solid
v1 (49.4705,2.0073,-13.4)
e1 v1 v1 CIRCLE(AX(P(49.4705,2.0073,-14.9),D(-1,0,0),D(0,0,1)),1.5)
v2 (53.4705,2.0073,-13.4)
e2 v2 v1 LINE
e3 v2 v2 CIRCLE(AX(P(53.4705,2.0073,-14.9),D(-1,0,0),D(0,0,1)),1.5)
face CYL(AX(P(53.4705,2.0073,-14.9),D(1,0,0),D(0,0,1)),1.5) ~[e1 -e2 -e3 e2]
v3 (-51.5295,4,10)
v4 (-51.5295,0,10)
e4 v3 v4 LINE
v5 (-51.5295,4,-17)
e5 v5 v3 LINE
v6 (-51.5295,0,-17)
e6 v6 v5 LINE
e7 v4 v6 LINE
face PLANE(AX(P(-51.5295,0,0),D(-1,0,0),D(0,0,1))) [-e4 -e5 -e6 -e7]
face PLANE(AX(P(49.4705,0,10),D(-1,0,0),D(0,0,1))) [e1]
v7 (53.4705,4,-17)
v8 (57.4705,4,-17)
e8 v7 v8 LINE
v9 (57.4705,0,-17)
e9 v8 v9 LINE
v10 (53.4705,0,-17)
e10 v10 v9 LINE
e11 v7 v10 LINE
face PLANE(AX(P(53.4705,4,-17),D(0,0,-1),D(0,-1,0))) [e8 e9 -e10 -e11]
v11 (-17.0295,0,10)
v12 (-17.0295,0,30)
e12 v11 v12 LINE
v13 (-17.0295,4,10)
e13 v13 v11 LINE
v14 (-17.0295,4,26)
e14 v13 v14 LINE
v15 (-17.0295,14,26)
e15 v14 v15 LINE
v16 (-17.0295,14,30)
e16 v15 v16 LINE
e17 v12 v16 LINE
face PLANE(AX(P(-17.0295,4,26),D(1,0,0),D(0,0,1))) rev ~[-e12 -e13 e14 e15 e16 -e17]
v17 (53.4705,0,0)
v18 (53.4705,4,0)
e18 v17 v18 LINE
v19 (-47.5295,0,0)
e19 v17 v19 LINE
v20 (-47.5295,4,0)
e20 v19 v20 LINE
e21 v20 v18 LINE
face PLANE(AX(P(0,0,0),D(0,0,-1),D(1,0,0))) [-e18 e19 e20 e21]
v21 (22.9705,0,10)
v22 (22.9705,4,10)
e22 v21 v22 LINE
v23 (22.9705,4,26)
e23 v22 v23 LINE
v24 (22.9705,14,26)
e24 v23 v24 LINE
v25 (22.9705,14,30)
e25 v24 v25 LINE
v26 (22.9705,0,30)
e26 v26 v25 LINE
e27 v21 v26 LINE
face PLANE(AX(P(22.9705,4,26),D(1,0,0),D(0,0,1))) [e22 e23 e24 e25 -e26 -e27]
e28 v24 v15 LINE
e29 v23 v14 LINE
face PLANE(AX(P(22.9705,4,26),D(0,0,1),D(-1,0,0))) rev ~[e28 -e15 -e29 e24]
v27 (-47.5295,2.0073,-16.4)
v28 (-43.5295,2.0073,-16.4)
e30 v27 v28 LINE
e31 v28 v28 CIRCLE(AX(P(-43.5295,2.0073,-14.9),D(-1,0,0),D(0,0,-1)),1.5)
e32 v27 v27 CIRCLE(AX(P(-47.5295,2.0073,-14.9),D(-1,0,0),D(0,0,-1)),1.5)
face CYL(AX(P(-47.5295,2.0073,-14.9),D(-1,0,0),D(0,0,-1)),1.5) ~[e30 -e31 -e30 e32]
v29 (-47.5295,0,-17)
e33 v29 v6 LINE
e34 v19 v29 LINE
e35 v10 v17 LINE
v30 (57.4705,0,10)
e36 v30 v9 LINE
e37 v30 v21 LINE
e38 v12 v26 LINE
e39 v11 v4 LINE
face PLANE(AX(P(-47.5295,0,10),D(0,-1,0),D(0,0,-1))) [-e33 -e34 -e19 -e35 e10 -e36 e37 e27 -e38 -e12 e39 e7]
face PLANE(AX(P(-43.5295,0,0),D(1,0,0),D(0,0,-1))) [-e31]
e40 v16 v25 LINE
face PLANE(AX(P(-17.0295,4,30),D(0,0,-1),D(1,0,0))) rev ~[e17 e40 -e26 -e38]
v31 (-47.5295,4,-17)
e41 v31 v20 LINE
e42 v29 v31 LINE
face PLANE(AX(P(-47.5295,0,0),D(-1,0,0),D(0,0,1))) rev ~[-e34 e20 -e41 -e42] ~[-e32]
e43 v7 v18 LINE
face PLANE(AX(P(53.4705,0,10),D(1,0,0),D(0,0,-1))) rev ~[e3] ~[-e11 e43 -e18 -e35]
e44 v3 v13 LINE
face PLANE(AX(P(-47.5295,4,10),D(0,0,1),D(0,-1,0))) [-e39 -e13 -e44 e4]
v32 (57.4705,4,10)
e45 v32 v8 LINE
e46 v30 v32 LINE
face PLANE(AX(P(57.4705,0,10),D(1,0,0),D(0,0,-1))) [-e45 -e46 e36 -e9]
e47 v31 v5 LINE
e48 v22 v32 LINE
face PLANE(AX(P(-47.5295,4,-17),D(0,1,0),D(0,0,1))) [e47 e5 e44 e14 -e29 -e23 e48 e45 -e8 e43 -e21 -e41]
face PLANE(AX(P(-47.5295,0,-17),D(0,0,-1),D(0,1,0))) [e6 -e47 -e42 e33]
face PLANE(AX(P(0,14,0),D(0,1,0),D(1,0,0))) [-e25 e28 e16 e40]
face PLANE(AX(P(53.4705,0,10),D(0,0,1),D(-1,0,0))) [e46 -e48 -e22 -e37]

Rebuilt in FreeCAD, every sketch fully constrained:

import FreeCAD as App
import Part
import Sketcher
Q = App.Units.Quantity


def add_polygon(sketch, points):
    """Adds a closed chain of lines whose ends are joined by coincident constraints."""
    first, n = sketch.GeometryCount, len(points)
    for a, b in zip(points, points[1:] + points[:1]):
        sketch.addGeometry(Part.LineSegment(App.Vector(*a, 0), App.Vector(*b, 0)), False)
    for i in range(n):
        sketch.addConstraint(Sketcher.Constraint("Coincident", first + i, 2, first + (i + 1) % n, 1))

doc = App.newDocument("Part")
body = doc.addObject("PartDesign::Body", "Body")

# Sketch on XZ plane
sketch1 = body.newObject("Sketcher::SketchObject", "Sketch")
sketch1.AttachmentSupport = (doc.getObject("XZ_Plane"), [""])
sketch1.MapMode = "FlatFace"
add_polygon(sketch1, [(53, 0), (-48, 0), (-48, 10), (53, 10)])  # lines 0-3
sketch1.addConstraint([
    Sketcher.Constraint("Horizontal", 0),
    Sketcher.Constraint("Vertical", 1),
    Sketcher.Constraint("Horizontal", 2),
    Sketcher.Constraint("Vertical", 3),
    Sketcher.Constraint("PointOnObject", 0, 2, -1),
    Sketcher.Constraint("DistanceX", 0, 2, 0, 1, Q("101 mm")),
    Sketcher.Constraint("DistanceY", 1, 1, 1, 2, Q("10 mm")),
    Sketcher.Constraint("DistanceX", 0, 2, -1, 1, Q("47.5295 mm")),
])
pad1 = body.newObject("PartDesign::Pad", "Pad")
pad1.Profile = sketch1
pad1.Length = 4
pad1.Reversed = True

# Sketch on XY plane
sketch2 = body.newObject("Sketcher::SketchObject", "Sketch001")
sketch2.AttachmentSupport = (doc.getObject("XY_Plane"), [""])
sketch2.MapMode = "FlatFace"
sketch2.AttachmentOffset = App.Placement(App.Vector(0, 0, 10), App.Rotation())
add_polygon(sketch2, [(23, 4), (-17, 4), (-17, 0), (23, 0)])  # lines 0-3
sketch2.addConstraint([
    Sketcher.Constraint("Horizontal", 0),
    Sketcher.Constraint("Vertical", 1),
    Sketcher.Constraint("Horizontal", 2),
    Sketcher.Constraint("Vertical", 3),
    Sketcher.Constraint("PointOnObject", 1, 2, -1),
    Sketcher.Constraint("DistanceX", 0, 2, 0, 1, Q("40 mm")),
    Sketcher.Constraint("DistanceY", 1, 2, 1, 1, Q("4 mm")),
    Sketcher.Constraint("DistanceX", 0, 2, -1, 1, Q("17.0295 mm")),
])
pad2 = body.newObject("PartDesign::Pad", "Pad001")
pad2.Profile = sketch2
pad2.Length = 20

# Sketch on XZ plane
sketch3 = body.newObject("Sketcher::SketchObject", "Sketch002")
sketch3.AttachmentSupport = (doc.getObject("XZ_Plane"), [""])
sketch3.MapMode = "FlatFace"
sketch3.AttachmentOffset = App.Placement(App.Vector(0, 0, -4), App.Rotation())
add_polygon(sketch3, [(-17, 26), (-17, 30), (23, 30), (23, 26)])  # lines 0-3
sketch3.addConstraint([
    Sketcher.Constraint("Vertical", 0),
    Sketcher.Constraint("Horizontal", 1),
    Sketcher.Constraint("Vertical", 2),
    Sketcher.Constraint("Horizontal", 3),
    Sketcher.Constraint("DistanceY", 0, 1, 0, 2, Q("4 mm")),
    Sketcher.Constraint("DistanceX", 1, 1, 1, 2, Q("40 mm")),
    Sketcher.Constraint("DistanceY", -1, 1, 0, 2, Q("30 mm")),
    Sketcher.Constraint("DistanceX", 0, 2, -1, 1, Q("17.0295 mm")),
])
pad3 = body.newObject("PartDesign::Pad", "Pad002")
pad3.Profile = sketch3
pad3.Length = 10
pad3.Reversed = True

# Sketch on YZ plane
sketch4 = body.newObject("Sketcher::SketchObject", "Sketch003")
sketch4.AttachmentSupport = (doc.getObject("YZ_Plane"), [""])
sketch4.MapMode = "FlatFace"
sketch4.AttachmentOffset = App.Placement(App.Vector(0, 0, 53.4705), App.Rotation())
add_polygon(sketch4, [(4, 10), (0, 10), (0, -17), (4, -17)])  # lines 0-3
sketch4.addConstraint([
    Sketcher.Constraint("Horizontal", 0),
    Sketcher.Constraint("Vertical", 1),
    Sketcher.Constraint("Horizontal", 2),
    Sketcher.Constraint("Vertical", 3),
    Sketcher.Constraint("PointOnObject", 0, 2, -2),
    Sketcher.Constraint("DistanceY", 1, 2, -1, 1, Q("17 mm")),
    Sketcher.Constraint("DistanceX", 0, 2, 0, 1, Q("4 mm")),
    Sketcher.Constraint("DistanceY", 1, 2, 1, 1, Q("27 mm")),
])
pad4 = body.newObject("PartDesign::Pad", "Pad003")
pad4.Profile = sketch4
pad4.Length = 4

# Sketch on YZ plane
sketch5 = body.newObject("Sketcher::SketchObject", "Sketch004")
sketch5.AttachmentSupport = (doc.getObject("YZ_Plane"), [""])
sketch5.MapMode = "FlatFace"
sketch5.AttachmentOffset = App.Placement(App.Vector(0, 0, -47.5295), App.Rotation())
add_polygon(sketch5, [(4, 10), (4, -17), (0, -17), (0, 10)])  # lines 0-3
sketch5.addConstraint([
    Sketcher.Constraint("Vertical", 0),
    Sketcher.Constraint("Horizontal", 1),
    Sketcher.Constraint("Vertical", 2),
    Sketcher.Constraint("Horizontal", 3),
    Sketcher.Constraint("PointOnObject", 1, 2, -2),
    Sketcher.Constraint("DistanceX", 1, 2, 1, 1, Q("4 mm")),
    Sketcher.Constraint("DistanceY", 0, 2, 0, 1, Q("27 mm")),
    Sketcher.Constraint("DistanceY", 0, 2, -1, 1, Q("17 mm")),
])
pad5 = body.newObject("PartDesign::Pad", "Pad004")
pad5.Profile = sketch5
pad5.Length = 4
pad5.Reversed = True

# Sketch on YZ plane
sketch6 = body.newObject("Sketcher::SketchObject", "Sketch005")
sketch6.AttachmentSupport = (doc.getObject("YZ_Plane"), [""])
sketch6.MapMode = "FlatFace"
sketch6.AttachmentOffset = App.Placement(App.Vector(0, 0, -47.5295), App.Rotation())
sketch6.addGeometry(Part.Circle(App.Vector(2, -14.9, 0), App.Vector(0, 0, 1), 1.5), False)
sketch6.addConstraint([
    Sketcher.Constraint("Diameter", 0, Q("3 mm")),
    Sketcher.Constraint("DistanceY", 0, 3, -1, 1, Q("14.9 mm")),
    Sketcher.Constraint("DistanceX", -1, 1, 0, 3, Q("2.0073 mm")),
])
pad6 = body.newObject("PartDesign::Pad", "Pad005")
pad6.Profile = sketch6
pad6.Length = 4

# Sketch on YZ plane
sketch7 = body.newObject("Sketcher::SketchObject", "Sketch006")
sketch7.AttachmentSupport = (doc.getObject("YZ_Plane"), [""])
sketch7.MapMode = "FlatFace"
sketch7.AttachmentOffset = App.Placement(App.Vector(0, 0, 53.4705), App.Rotation())
sketch7.addGeometry(Part.Circle(App.Vector(2, -14.9, 0), App.Vector(0, 0, 1), 1.5), False)
sketch7.addConstraint([
    Sketcher.Constraint("Diameter", 0, Q("3 mm")),
    Sketcher.Constraint("DistanceY", 0, 3, -1, 1, Q("14.9 mm")),
    Sketcher.Constraint("DistanceX", -1, 1, 0, 3, Q("2.0073 mm")),
])
pad7 = body.newObject("PartDesign::Pad", "Pad006")
pad7.Profile = sketch7
pad7.Length = 4
pad7.Reversed = True

doc.recompute()
